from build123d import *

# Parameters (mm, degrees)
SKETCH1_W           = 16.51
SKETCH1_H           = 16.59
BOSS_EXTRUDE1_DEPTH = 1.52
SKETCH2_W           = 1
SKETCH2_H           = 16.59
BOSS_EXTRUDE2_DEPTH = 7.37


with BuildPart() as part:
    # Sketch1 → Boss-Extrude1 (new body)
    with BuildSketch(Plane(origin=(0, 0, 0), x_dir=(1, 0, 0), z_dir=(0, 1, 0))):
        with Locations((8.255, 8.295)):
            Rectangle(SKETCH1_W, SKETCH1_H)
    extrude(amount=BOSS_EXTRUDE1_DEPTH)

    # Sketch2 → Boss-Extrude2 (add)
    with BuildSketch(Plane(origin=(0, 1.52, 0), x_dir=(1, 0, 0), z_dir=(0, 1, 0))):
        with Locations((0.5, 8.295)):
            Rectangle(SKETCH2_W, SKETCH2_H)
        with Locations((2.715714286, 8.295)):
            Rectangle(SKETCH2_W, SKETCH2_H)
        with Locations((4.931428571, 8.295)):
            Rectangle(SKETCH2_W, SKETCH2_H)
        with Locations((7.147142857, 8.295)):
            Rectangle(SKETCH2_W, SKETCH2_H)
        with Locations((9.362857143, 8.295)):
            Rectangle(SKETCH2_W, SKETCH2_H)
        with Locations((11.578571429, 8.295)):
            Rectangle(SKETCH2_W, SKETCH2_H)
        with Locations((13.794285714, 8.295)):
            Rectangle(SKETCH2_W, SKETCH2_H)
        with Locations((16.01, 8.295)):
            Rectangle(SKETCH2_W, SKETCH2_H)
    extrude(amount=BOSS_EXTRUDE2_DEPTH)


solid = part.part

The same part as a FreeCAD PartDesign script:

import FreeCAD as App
import Part
import Sketcher
from FreeCAD import Vector
Q = App.Units.Quantity

doc = App.newDocument("Part")
params = doc.addObject("Spreadsheet::Sheet", "Params")
for row, (alias, value) in enumerate([
    ("sketch1_width", "16.51 mm"),
    ("sketch1_height", "16.59 mm"),
    ("pad1_length", "1.52 mm"),
    ("sketch2_width", "1 mm"),
    ("sketch2_height", "16.59 mm"),
    ("pad2_length", "7.37 mm"),
], start=1):
    params.set(f"A{row}", alias)
    params.set(f"B{row}", "=" + value)
    params.setAlias(f"B{row}", alias)

body = doc.addObject("PartDesign::Body", "Body")

# Sketch on XZ plane
sketch1 = doc.addObject("Sketcher::SketchObject", "Sketch")
body.addObject(sketch1)
sketch1.AttachmentSupport = (doc.XZ_Plane, [""])
sketch1.MapMode = "FlatFace"
sketch1.addGeometry([
    Part.LineSegment(Vector(0, -17, 0), Vector(0, 0, 0)),
    Part.LineSegment(Vector(0, 0, 0), Vector(17, 0, 0)),
    Part.LineSegment(Vector(17, 0, 0), Vector(17, -17, 0)),
    Part.LineSegment(Vector(17, -17, 0), Vector(0, -17, 0)),
], False)
sketch1.addConstraint([
    Sketcher.Constraint("Coincident", 0, 2, 1, 1),
    Sketcher.Constraint("Coincident", 1, 2, 2, 1),
    Sketcher.Constraint("Coincident", 2, 2, 3, 1),
    Sketcher.Constraint("Coincident", 3, 2, 0, 1),
    Sketcher.Constraint("Vertical", 0),
    Sketcher.Constraint("Horizontal", 1),
    Sketcher.Constraint("Vertical", 2),
    Sketcher.Constraint("Horizontal", 3),
    Sketcher.Constraint("Coincident", 0, 2, -1, 1),
    Sketcher.Constraint("DistanceX", 1, 1, 1, 2, Q("16.51 mm")),
    Sketcher.Constraint("DistanceY", 0, 1, 0, 2, Q("16.59 mm")),
])
sketch1.setExpression("Constraints[9]", "Params.sketch1_width")
sketch1.setExpression("Constraints[10]", "Params.sketch1_height")
pad1 = doc.addObject("PartDesign::Pad", "Pad")
body.addObject(pad1)
pad1.Profile = sketch1
pad1.setExpression("Length", "Params.pad1_length")
pad1.Reversed = True

# Sketch on XZ plane
sketch2 = doc.addObject("Sketcher::SketchObject", "Sketch001")
body.addObject(sketch2)
sketch2.AttachmentSupport = (doc.XZ_Plane, [""])
sketch2.MapMode = "FlatFace"
sketch2.AttachmentOffset = App.Placement(Vector(0, 0, -1.52), App.Rotation())
sketch2.addGeometry([
    Part.LineSegment(Vector(0, -16.6, 0), Vector(0, 0, 0)),  # 0
    Part.LineSegment(Vector(0, 0, 0), Vector(1, 0, 0)),  # 1
    Part.LineSegment(Vector(1, 0, 0), Vector(1, -16.6, 0)),  # 2
    Part.LineSegment(Vector(1, -16.6, 0), Vector(0, -16.6, 0)),  # 3
    Part.LineSegment(Vector(2.2, -16.6, 0), Vector(2.2, 0, 0)),  # 4
    Part.LineSegment(Vector(2.2, 0, 0), Vector(3.2, 0, 0)),  # 5
    Part.LineSegment(Vector(3.2, 0, 0), Vector(3.2, -16.6, 0)),  # 6
    Part.LineSegment(Vector(3.2, -16.6, 0), Vector(2.2, -16.6, 0)),  # 7
    Part.LineSegment(Vector(4.4, -16.6, 0), Vector(4.4, 0, 0)),  # 8
    Part.LineSegment(Vector(4.4, 0, 0), Vector(5.4, 0, 0)),  # 9
    Part.LineSegment(Vector(5.4, 0, 0), Vector(5.4, -16.6, 0)),  # 10
    Part.LineSegment(Vector(5.4, -16.6, 0), Vector(4.4, -16.6, 0)),  # 11
    Part.LineSegment(Vector(6.6, -16.6, 0), Vector(6.6, 0, 0)),  # 12
    Part.LineSegment(Vector(6.6, 0, 0), Vector(7.6, 0, 0)),  # 13
    Part.LineSegment(Vector(7.6, 0, 0), Vector(7.6, -16.6, 0)),  # 14
    Part.LineSegment(Vector(7.6, -16.6, 0), Vector(6.6, -16.6, 0)),  # 15
    Part.LineSegment(Vector(8.9, -16.6, 0), Vector(8.9, 0, 0)),  # 16
    Part.LineSegment(Vector(8.9, 0, 0), Vector(9.9, 0, 0)),  # 17
    Part.LineSegment(Vector(9.9, 0, 0), Vector(9.9, -16.6, 0)),  # 18
    Part.LineSegment(Vector(9.9, -16.6, 0), Vector(8.9, -16.6, 0)),  # 19
    Part.LineSegment(Vector(11.1, -16.6, 0), Vector(11.1, 0, 0)),  # 20
    Part.LineSegment(Vector(11.1, 0, 0), Vector(12.1, 0, 0)),  # 21
    Part.LineSegment(Vector(12.1, 0, 0), Vector(12.1, -16.6, 0)),  # 22
    Part.LineSegment(Vector(12.1, -16.6, 0), Vector(11.1, -16.6, 0)),  # 23
    Part.LineSegment(Vector(13.3, -16.6, 0), Vector(13.3, 0, 0)),  # 24
    Part.LineSegment(Vector(13.3, 0, 0), Vector(14.3, 0, 0)),  # 25
    Part.LineSegment(Vector(14.3, 0, 0), Vector(14.3, -16.6, 0)),  # 26
    Part.LineSegment(Vector(14.3, -16.6, 0), Vector(13.3, -16.6, 0)),  # 27
    Part.LineSegment(Vector(15.5, -16.6, 0), Vector(15.5, 0, 0)),  # 28
    Part.LineSegment(Vector(15.5, 0, 0), Vector(16.5, 0, 0)),  # 29
    Part.LineSegment(Vector(16.5, 0, 0), Vector(16.5, -16.6, 0)),  # 30
    Part.LineSegment(Vector(16.5, -16.6, 0), Vector(15.5, -16.6, 0)),  # 31
], False)
sketch2.addConstraint([
    Sketcher.Constraint("Coincident", 0, 2, 1, 1),
    Sketcher.Constraint("Coincident", 1, 2, 2, 1),
    Sketcher.Constraint("Coincident", 2, 2, 3, 1),
    Sketcher.Constraint("Coincident", 3, 2, 0, 1),
    Sketcher.Constraint("Coincident", 4, 2, 5, 1),
    Sketcher.Constraint("Coincident", 5, 2, 6, 1),
    Sketcher.Constraint("Coincident", 6, 2, 7, 1),
    Sketcher.Constraint("Coincident", 7, 2, 4, 1),
    Sketcher.Constraint("Coincident", 8, 2, 9, 1),
    Sketcher.Constraint("Coincident", 9, 2, 10, 1),
    Sketcher.Constraint("Coincident", 10, 2, 11, 1),
    Sketcher.Constraint("Coincident", 11, 2, 8, 1),
    Sketcher.Constraint("Coincident", 12, 2, 13, 1),
    Sketcher.Constraint("Coincident", 13, 2, 14, 1),
    Sketcher.Constraint("Coincident", 14, 2, 15, 1),
    Sketcher.Constraint("Coincident", 15, 2, 12, 1),
    Sketcher.Constraint("Coincident", 16, 2, 17, 1),
    Sketcher.Constraint("Coincident", 17, 2, 18, 1),
    Sketcher.Constraint("Coincident", 18, 2, 19, 1),
    Sketcher.Constraint("Coincident", 19, 2, 16, 1),
    Sketcher.Constraint("Coincident", 20, 2, 21, 1),
    Sketcher.Constraint("Coincident", 21, 2, 22, 1),
    Sketcher.Constraint("Coincident", 22, 2, 23, 1),
    Sketcher.Constraint("Coincident", 23, 2, 20, 1),
    Sketcher.Constraint("Coincident", 24, 2, 25, 1),
    Sketcher.Constraint("Coincident", 25, 2, 26, 1),
    Sketcher.Constraint("Coincident", 26, 2, 27, 1),
    Sketcher.Constraint("Coincident", 27, 2, 24, 1),
    Sketcher.Constraint("Coincident", 28, 2, 29, 1),
    Sketcher.Constraint("Coincident", 29, 2, 30, 1),
    Sketcher.Constraint("Coincident", 30, 2, 31, 1),
    Sketcher.Constraint("Coincident", 31, 2, 28, 1),
    Sketcher.Constraint("Vertical", 0),
    Sketcher.Constraint("Horizontal", 1),
    Sketcher.Constraint("Vertical", 2),
    Sketcher.Constraint("Horizontal", 3),
    Sketcher.Constraint("Vertical", 4),
    Sketcher.Constraint("Horizontal", 5),
    Sketcher.Constraint("Vertical", 6),
    Sketcher.Constraint("Horizontal", 7),
    Sketcher.Constraint("Vertical", 8),
    Sketcher.Constraint("Horizontal", 9),
    Sketcher.Constraint("Vertical", 10),
    Sketcher.Constraint("Horizontal", 11),
    Sketcher.Constraint("Vertical", 12),
    Sketcher.Constraint("Horizontal", 13),
    Sketcher.Constraint("Vertical", 14),
    Sketcher.Constraint("Horizontal", 15),
    Sketcher.Constraint("Vertical", 16),
    Sketcher.Constraint("Horizontal", 17),
    Sketcher.Constraint("Vertical", 18),
    Sketcher.Constraint("Horizontal", 19),
    Sketcher.Constraint("Vertical", 20),
    Sketcher.Constraint("Horizontal", 21),
    Sketcher.Constraint("Vertical", 22),
    Sketcher.Constraint("Horizontal", 23),
    Sketcher.Constraint("Vertical", 24),
    Sketcher.Constraint("Horizontal", 25),
    Sketcher.Constraint("Vertical", 26),
    Sketcher.Constraint("Horizontal", 27),
    Sketcher.Constraint("Vertical", 28),
    Sketcher.Constraint("Horizontal", 29),
    Sketcher.Constraint("Vertical", 30),
    Sketcher.Constraint("Horizontal", 31),
    Sketcher.Constraint("Coincident", 0, 2, -1, 1),
    Sketcher.Constraint("PointOnObject", 4, 2, -1),
    Sketcher.Constraint("PointOnObject", 8, 2, -1),
    Sketcher.Constraint("PointOnObject", 12, 2, -1),
    Sketcher.Constraint("PointOnObject", 16, 2, -1),
    Sketcher.Constraint("PointOnObject", 20, 2, -1),
    Sketcher.Constraint("PointOnObject", 24, 2, -1),
    Sketcher.Constraint("PointOnObject", 28, 2, -1),
    Sketcher.Constraint("Horizontal", 3, 2, 6, 2),
    Sketcher.Constraint("Horizontal", 7, 2, 10, 2),
    Sketcher.Constraint("Horizontal", 11, 2, 14, 2),
    Sketcher.Constraint("Horizontal", 15, 2, 18, 2),
    Sketcher.Constraint("Horizontal", 19, 2, 22, 2),
    Sketcher.Constraint("Horizontal", 23, 2, 26, 2),
    Sketcher.Constraint("Horizontal", 27, 2, 30, 2),
    Sketcher.Constraint("Equal", 3, 5),
    Sketcher.Constraint("Equal", 7, 9),
    Sketcher.Constraint("Equal", 11, 13),
    Sketcher.Constraint("Equal", 15, 17),
    Sketcher.Constraint("Equal", 19, 21),
    Sketcher.Constraint("Equal", 23, 25),
    Sketcher.Constraint("Equal", 27, 29),
    Sketcher.Constraint("DistanceX", 1, 1, 1, 2, Q("1 mm")),
    Sketcher.Constraint("DistanceY", 0, 1, 0, 2, Q("16.59 mm")),
    Sketcher.Constraint("DistanceX", -1, 1, 28, 2, Q("15.51 mm")),
    Sketcher.Constraint("DistanceX", -1, 1, 8, 2, Q("4.431429 mm")),
    Sketcher.Constraint("DistanceX", -1, 1, 20, 2, Q("11.078571 mm")),
    Sketcher.Constraint("DistanceX", 5, 2, 12, 2, Q("3.431429 mm")),
    Sketcher.Constraint("DistanceX", 9, 2, 16, 2, Q("3.431429 mm")),
    Sketcher.Constraint("DistanceX", 13, 2, 20, 2, Q("3.431429 mm")),
    Sketcher.Constraint("DistanceX", 17, 2, 24, 2, Q("3.431429 mm")),
])
sketch2.setExpression("Constraints[86]", "Params.sketch2_width")
sketch2.setExpression("Constraints[87]", "Params.sketch2_height")
pad2 = doc.addObject("PartDesign::Pad", "Pad001")
body.addObject(pad2)
pad2.Profile = sketch2
pad2.setExpression("Length", "Params.pad2_length")
pad2.Reversed = True

doc.recompute()
